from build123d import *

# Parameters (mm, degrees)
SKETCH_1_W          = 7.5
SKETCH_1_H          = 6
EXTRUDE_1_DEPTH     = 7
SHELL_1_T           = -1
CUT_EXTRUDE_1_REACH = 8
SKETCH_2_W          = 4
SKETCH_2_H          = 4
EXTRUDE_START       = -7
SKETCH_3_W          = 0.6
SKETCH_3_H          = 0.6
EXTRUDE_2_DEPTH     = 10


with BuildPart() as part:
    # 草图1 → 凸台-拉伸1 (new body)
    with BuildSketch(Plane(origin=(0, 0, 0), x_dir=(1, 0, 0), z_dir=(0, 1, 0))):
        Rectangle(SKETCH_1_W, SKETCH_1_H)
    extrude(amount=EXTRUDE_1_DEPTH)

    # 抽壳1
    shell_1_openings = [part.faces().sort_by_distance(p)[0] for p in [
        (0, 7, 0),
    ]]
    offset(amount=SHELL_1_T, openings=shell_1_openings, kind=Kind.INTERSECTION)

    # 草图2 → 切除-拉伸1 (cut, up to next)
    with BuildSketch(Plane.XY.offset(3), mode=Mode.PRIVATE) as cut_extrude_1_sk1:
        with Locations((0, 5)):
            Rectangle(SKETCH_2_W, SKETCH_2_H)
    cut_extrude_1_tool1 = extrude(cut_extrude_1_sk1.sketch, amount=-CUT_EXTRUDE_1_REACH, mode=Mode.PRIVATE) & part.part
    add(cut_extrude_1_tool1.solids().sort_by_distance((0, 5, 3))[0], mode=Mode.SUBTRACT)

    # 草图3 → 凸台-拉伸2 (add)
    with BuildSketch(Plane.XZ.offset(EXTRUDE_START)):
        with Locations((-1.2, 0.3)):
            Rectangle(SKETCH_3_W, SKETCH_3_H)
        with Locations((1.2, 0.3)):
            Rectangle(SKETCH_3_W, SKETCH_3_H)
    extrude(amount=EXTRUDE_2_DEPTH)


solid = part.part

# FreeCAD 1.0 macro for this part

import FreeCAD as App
import Part
import Sketcher

V = App.Vector


def faces_at(feature, points):
    """Names of the faces that lie closest to the given points."""
    faces = feature.Shape.Faces
    near = lambda p: min(range(len(faces)), key=lambda i: faces[i].distToShape(Part.Vertex(*p))[0])
    return sorted({f"Face{near(p) + 1}" for p in points})


def add_polygon(sketch, points):
    """Adds a closed chain of lines whose ends are joined by coincident constraints."""
    first, n = sketch.GeometryCount, len(points)
    for a, b in zip(points, points[1:] + points[:1]):
        sketch.addGeometry(Part.LineSegment(App.Vector(*a, 0), App.Vector(*b, 0)), False)
    for i in range(n):
        sketch.addConstraint(Sketcher.Constraint("Coincident", first + i, 2, first + (i + 1) % n, 1))

doc = App.newDocument("Part")
body = doc.addObject("PartDesign::Body", "Body")

sketch1 = body.newObject("Sketcher::SketchObject", "Sketch")
sketch1.AttachmentSupport = (doc.getObject("XZ_Plane"), [""])
sketch1.MapMode = "FlatFace"
add_polygon(sketch1, [(-4, -3), (-4, 3), (4, 3), (4, -3)])
sketch1.addConstraint([
    Sketcher.Constraint("Vertical", 0),
    Sketcher.Constraint("Horizontal", 1),
    Sketcher.Constraint("Vertical", 2),
    Sketcher.Constraint("Horizontal", 3),
    Sketcher.Constraint("Symmetric", 0, 2, 2, 2, -1, 1),
    Sketcher.Constraint("DistanceY", 0, 1, 0, 2, 6.0),
    Sketcher.Constraint("DistanceX", 1, 1, 1, 2, 7.5),
])
pad1 = body.newObject("PartDesign::Pad", "Pad")
pad1.Profile = sketch1
pad1.Length = 7
pad1.Reversed = True
doc.recompute()

thickness = body.newObject("PartDesign::Thickness", "Thickness")
thickness.Base = (pad1, faces_at(pad1, [(0, 7, 0)]))
thickness.Value = 1
thickness.Reversed = True
thickness.Join = "Intersection"

sketch2 = body.newObject("Sketcher::SketchObject", "Sketch001")
sketch2.AttachmentSupport = (doc.getObject("XY_Plane"), [""])
sketch2.MapMode = "FlatFace"
sketch2.AttachmentOffset = App.Placement(V(0, 0, 3), App.Rotation())
add_polygon(sketch2, [(-2, 7), (-2, 3), (2, 3), (2, 7)])
sketch2.addConstraint([
    Sketcher.Constraint("Vertical", 0),
    Sketcher.Constraint("Horizontal", 1),
    Sketcher.Constraint("Vertical", 2),
    Sketcher.Constraint("Horizontal", 3),
    Sketcher.Constraint("Equal", 3, 0),
    Sketcher.Constraint("DistanceX", 1, 1, 1, 2, 4.0),
    Sketcher.Constraint("DistanceX", 0, 2, -1, 1, 2.0),
    Sketcher.Constraint("DistanceY", -1, 1, 0, 2, 3.0),
])
pocket1 = body.newObject("PartDesign::Pocket", "Pocket")
pocket1.Profile = sketch2
pocket1.Type = "UpToFirst"

sketch3 = body.newObject("Sketcher::SketchObject", "Sketch002")
sketch3.AttachmentSupport = (doc.getObject("XZ_Plane"), [""])
sketch3.MapMode = "FlatFace"
sketch3.AttachmentOffset = App.Placement(V(0, 0, -7), App.Rotation())
add_polygon(sketch3, [(-1.5, 0.6), (-1.5, 0), (-0.9, 0), (-0.9, 0.6)])
add_polygon(sketch3, [(0.9, 0.6), (0.9, 0), (1.5, 0), (1.5, 0.6)])
sketch3.addConstraint([
    Sketcher.Constraint("Vertical", 0),
    Sketcher.Constraint("Horizontal", 1),
    Sketcher.Constraint("Vertical", 2),
    Sketcher.Constraint("Horizontal", 3),
    Sketcher.Constraint("Vertical", 4),
    Sketcher.Constraint("Horizontal", 5),
    Sketcher.Constraint("Vertical", 6),
    Sketcher.Constraint("Horizontal", 7),
    Sketcher.Constraint("Symmetric", 1, 2, 4, 2, -1, 1),
    Sketcher.Constraint("Symmetric", 0, 2, 5, 2, -2),
    Sketcher.Constraint("Horizontal", 3, 2, 6, 2),
    Sketcher.Constraint("Equal", 7, 0),
    Sketcher.Constraint("DistanceX", 1, 1, 1, 2, 0.6),
    Sketcher.Constraint("DistanceX", 0, 2, 5, 2, 3.0),
])
pad2 = body.newObject("PartDesign::Pad", "Pad001")
pad2.Profile = sketch3
pad2.Length = 10

doc.recompute()
